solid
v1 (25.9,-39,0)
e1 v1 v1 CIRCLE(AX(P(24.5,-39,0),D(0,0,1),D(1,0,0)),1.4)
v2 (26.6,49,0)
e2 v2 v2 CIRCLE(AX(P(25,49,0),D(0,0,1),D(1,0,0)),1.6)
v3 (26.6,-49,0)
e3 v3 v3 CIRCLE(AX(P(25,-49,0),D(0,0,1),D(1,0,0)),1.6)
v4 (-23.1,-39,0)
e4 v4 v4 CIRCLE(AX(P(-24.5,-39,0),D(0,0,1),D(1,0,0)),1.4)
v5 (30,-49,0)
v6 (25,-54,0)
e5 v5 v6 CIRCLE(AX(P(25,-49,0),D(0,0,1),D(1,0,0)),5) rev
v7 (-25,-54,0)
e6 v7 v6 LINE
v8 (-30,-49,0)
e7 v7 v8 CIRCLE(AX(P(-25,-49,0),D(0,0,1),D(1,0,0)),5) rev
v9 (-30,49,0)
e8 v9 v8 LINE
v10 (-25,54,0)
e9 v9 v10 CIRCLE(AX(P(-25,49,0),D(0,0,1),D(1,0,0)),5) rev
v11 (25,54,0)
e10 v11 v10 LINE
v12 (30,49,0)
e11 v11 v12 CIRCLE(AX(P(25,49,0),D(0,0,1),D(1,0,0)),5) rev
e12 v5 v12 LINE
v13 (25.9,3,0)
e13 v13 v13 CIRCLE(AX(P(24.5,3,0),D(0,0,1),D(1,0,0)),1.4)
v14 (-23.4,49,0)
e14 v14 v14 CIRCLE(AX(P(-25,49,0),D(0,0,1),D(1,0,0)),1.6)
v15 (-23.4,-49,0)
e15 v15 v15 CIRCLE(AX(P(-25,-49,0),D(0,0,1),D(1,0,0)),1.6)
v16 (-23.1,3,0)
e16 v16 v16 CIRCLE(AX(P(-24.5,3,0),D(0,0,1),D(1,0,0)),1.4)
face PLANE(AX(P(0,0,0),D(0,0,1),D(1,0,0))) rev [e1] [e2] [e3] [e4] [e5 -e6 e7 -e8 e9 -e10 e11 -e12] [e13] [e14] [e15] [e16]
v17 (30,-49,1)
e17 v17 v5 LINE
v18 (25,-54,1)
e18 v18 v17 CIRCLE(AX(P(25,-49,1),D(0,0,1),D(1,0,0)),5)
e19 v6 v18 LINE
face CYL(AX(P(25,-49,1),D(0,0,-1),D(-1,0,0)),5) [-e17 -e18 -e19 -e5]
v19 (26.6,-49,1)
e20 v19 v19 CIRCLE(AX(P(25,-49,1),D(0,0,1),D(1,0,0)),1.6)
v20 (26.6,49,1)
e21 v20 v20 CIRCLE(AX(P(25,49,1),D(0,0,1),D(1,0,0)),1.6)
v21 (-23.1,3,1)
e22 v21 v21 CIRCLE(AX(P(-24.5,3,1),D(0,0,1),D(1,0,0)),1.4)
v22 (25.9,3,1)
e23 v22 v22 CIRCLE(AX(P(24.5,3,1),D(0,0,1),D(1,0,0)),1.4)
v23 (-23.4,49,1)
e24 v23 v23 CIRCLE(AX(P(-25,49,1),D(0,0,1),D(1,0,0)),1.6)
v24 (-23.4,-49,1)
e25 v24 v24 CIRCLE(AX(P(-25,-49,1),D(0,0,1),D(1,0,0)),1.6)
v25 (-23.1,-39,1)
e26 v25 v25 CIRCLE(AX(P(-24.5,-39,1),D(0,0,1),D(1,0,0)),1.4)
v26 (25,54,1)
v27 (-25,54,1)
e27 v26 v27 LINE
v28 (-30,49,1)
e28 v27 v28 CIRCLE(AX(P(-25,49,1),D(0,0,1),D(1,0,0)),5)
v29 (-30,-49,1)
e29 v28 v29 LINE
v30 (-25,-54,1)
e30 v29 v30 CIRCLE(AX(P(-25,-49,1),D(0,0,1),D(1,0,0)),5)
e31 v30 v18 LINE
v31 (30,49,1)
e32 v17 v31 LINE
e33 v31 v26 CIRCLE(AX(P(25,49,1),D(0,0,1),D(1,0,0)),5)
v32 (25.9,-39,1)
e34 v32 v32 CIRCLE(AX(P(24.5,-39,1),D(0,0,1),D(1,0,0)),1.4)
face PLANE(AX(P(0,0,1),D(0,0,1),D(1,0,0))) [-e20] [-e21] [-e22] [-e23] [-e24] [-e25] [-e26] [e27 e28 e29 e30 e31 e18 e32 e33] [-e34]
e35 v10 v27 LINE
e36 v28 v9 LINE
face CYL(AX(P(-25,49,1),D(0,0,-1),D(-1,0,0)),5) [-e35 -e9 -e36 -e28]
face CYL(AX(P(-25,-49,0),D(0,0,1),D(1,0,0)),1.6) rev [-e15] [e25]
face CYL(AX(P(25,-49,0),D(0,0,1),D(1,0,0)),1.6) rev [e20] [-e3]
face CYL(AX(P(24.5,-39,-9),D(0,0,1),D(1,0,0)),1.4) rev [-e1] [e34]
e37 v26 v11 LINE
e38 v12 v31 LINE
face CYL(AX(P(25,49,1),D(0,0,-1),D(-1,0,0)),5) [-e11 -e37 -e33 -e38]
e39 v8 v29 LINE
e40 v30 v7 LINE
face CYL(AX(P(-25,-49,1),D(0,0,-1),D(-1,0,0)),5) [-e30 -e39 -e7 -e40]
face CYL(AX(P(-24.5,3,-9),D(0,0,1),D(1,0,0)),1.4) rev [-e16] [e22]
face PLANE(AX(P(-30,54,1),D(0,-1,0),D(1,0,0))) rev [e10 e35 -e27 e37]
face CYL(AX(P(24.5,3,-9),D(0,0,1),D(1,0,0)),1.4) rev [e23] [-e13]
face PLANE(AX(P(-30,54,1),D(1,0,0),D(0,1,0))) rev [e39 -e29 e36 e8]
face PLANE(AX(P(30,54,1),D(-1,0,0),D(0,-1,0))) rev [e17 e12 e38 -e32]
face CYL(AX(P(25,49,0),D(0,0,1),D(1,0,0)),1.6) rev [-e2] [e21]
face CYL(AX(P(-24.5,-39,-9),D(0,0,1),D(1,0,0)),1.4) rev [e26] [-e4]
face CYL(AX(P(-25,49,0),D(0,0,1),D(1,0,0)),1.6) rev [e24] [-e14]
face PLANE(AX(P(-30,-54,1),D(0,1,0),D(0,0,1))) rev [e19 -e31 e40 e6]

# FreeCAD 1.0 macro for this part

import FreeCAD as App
import Part
import Sketcher

V = App.Vector


def edges_at(feature, points):
    """Names of the edges that pass closest to the given points."""
    edges = feature.Shape.Edges
    near = lambda p: min(range(len(edges)), key=lambda i: edges[i].distToShape(Part.Vertex(*p))[0])
    return sorted({f"Edge{near(p) + 1}" for p in points})


def add_polygon(sketch, points):
    """Adds a closed chain of lines whose ends are joined by coincident constraints."""
    first, n = sketch.GeometryCount, len(points)
    for a, b in zip(points, points[1:] + points[:1]):
        sketch.addGeometry(Part.LineSegment(App.Vector(*a, 0), App.Vector(*b, 0)), False)
    for i in range(n):
        sketch.addConstraint(Sketcher.Constraint("Coincident", first + i, 2, first + (i + 1) % n, 1))

doc = App.newDocument("Part")
body = doc.addObject("PartDesign::Body", "Body")

# Sketch on XY plane
sketch1 = doc.addObject("Sketcher::SketchObject", "Sketch")
body.addObject(sketch1)
sketch1.AttachmentSupport = (doc.XY_Plane, [""])
sketch1.MapMode = "FlatFace"
add_polygon(sketch1, [(-30, 54), (-30, -54), (30, -54), (30, 54)])  # lines 0-3
sketch1.addConstraint([
    Sketcher.Constraint("Vertical", 0),
    Sketcher.Constraint("Horizontal", 1),
    Sketcher.Constraint("Vertical", 2),
    Sketcher.Constraint("Horizontal", 3),
    Sketcher.Constraint("Symmetric", 0, 2, 2, 2, -1, 1),
    Sketcher.Constraint("DistanceX", 1, 1, 1, 2, 60.0),
    Sketcher.Constraint("DistanceY", 0, 2, 0, 1, 108.0),
])
pad1 = doc.addObject("PartDesign::Pad", "Pad")
body.addObject(pad1)
pad1.Profile = sketch1
pad1.Length = 1

# Sketch on XY plane
sketch2 = doc.addObject("Sketcher::SketchObject", "Sketch001")
body.addObject(sketch2)
sketch2.AttachmentSupport = (doc.XY_Plane, [""])
sketch2.MapMode = "FlatFace"
sketch2.AttachmentOffset = App.Placement(V(0, 0, 1), App.Rotation())
sketch2.addGeometry([
    Part.Circle(V(-24.5, 3, 0), V(0, 0, 1), 1.4),
    Part.Circle(V(-24.5, -39, 0), V(0, 0, 1), 1.4),
    Part.Circle(V(24.5, 3, 0), V(0, 0, 1), 1.4),
    Part.Circle(V(24.5, -39, 0), V(0, 0, 1), 1.4),
], False)
sketch2.addConstraint([
    Sketcher.Constraint("Equal", 0, 1),
    Sketcher.Constraint("Equal", 1, 2),
    Sketcher.Constraint("Equal", 2, 3),
    Sketcher.Constraint("Symmetric", 0, 3, 2, 3, -2),
    Sketcher.Constraint("Symmetric", 1, 3, 3, 3, -2),
    Sketcher.Constraint("Vertical", 0, 3, 1, 3),
    Sketcher.Constraint("Diameter", 0, 2.8),
    Sketcher.Constraint("DistanceY", -1, 1, 0, 3, 3.0),
    Sketcher.Constraint("DistanceY", 1, 3, -1, 1, 39.0),
    Sketcher.Constraint("DistanceX", 0, 3, 2, 3, 49.0),
])
pocket1 = doc.addObject("PartDesign::Pocket", "Pocket")
body.addObject(pocket1)
pocket1.Profile = sketch2
pocket1.Length = 10

# Sketch on XY plane
sketch3 = doc.addObject("Sketcher::SketchObject", "Sketch002")
body.addObject(sketch3)
sketch3.AttachmentSupport = (doc.XY_Plane, [""])
sketch3.MapMode = "FlatFace"
sketch3.AttachmentOffset = App.Placement(V(0, 0, 1), App.Rotation())
sketch3.addGeometry([
    Part.Circle(V(25, 49, 0), V(0, 0, 1), 1.6),
    Part.Circle(V(-25, 49, 0), V(0, 0, 1), 1.6),
    Part.Circle(V(-25, -49, 0), V(0, 0, 1), 1.6),
    Part.Circle(V(25, -49, 0), V(0, 0, 1), 1.6),
], False)
sketch3.addConstraint([
    Sketcher.Constraint("Equal", 0, 1),
    Sketcher.Constraint("Equal", 1, 2),
    Sketcher.Constraint("Equal", 2, 3),
    Sketcher.Constraint("Symmetric", 0, 3, 2, 3, -1, 1),
    Sketcher.Constraint("Symmetric", 1, 3, 3, 3, -1, 1),
    Sketcher.Constraint("Symmetric", 0, 3, 1, 3, -2),
    Sketcher.Constraint("Diameter", 0, 3.2),
    Sketcher.Constraint("DistanceX", -1, 1, 0, 3, 25.0),
    Sketcher.Constraint("DistanceY", -1, 1, 0, 3, 49.0),
])
pocket2 = doc.addObject("PartDesign::Pocket", "Pocket001")
body.addObject(pocket2)
pocket2.Profile = sketch3
pocket2.Type = "ThroughAll"
doc.recompute()

fillet = doc.addObject("PartDesign::Fillet", "Fillet")
body.addObject(fillet)
fillet.Base = (pocket2, edges_at(pocket2, [
    (30, -54, 0.5),
    (-30, -54, 0.5),
    (-30, 54, 0.5),
    (30, 54, 0.5),
]))
fillet.Radius = 5

doc.recompute()
